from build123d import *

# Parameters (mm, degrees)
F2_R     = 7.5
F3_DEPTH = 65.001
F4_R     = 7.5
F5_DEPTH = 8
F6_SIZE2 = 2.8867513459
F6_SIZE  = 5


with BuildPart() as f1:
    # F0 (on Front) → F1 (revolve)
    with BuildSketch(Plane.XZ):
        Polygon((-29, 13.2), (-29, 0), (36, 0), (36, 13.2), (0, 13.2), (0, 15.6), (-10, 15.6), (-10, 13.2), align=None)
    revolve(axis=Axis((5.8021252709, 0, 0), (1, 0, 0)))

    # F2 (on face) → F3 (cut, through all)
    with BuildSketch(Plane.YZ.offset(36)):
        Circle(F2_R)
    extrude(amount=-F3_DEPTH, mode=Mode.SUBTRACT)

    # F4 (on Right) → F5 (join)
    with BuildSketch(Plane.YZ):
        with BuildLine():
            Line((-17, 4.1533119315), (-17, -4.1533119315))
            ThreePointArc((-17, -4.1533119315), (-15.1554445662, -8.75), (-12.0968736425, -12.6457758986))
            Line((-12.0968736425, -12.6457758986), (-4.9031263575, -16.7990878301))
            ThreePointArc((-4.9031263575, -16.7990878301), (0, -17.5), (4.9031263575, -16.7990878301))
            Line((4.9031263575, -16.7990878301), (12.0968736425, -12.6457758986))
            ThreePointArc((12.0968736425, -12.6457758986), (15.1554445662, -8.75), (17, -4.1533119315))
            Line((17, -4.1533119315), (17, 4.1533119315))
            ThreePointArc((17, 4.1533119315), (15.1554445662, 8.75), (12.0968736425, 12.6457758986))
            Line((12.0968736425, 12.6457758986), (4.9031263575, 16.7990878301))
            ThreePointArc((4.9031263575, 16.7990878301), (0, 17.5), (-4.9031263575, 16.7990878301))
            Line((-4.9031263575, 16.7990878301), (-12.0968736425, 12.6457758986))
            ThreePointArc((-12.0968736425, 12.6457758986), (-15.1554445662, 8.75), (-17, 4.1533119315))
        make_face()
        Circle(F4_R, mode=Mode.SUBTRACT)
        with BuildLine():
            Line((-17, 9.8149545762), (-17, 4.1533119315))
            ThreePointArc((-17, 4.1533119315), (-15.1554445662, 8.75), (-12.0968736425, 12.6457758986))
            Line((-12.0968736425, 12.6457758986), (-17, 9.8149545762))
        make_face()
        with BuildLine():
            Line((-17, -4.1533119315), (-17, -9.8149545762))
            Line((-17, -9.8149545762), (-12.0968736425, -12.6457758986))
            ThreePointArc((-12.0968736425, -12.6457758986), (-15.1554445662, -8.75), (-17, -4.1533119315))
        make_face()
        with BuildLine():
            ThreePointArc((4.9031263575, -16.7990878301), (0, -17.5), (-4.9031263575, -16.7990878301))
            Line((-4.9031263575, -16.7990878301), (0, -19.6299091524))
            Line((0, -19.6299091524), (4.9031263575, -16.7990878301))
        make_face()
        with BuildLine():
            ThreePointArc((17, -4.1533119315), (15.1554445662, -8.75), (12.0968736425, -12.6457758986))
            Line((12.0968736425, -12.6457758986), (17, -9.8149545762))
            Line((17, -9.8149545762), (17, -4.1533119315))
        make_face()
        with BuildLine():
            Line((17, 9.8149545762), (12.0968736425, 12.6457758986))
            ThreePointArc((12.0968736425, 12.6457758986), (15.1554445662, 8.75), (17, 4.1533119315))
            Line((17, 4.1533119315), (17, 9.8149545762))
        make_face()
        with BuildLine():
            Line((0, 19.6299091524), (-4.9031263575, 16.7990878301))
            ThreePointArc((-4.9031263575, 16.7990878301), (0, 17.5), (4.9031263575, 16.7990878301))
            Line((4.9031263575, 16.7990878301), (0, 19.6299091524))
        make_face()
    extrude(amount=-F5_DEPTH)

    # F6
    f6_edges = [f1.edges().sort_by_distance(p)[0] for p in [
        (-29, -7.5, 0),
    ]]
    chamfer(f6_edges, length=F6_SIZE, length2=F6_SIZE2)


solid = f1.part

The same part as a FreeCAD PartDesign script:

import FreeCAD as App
import Part
import Sketcher
Q = App.Units.Quantity


def edges_at(feature, points):
    """Names of the edges that pass closest to the given points."""
    edges = feature.Shape.Edges
    near = lambda p: min(range(len(edges)), key=lambda i: edges[i].distToShape(Part.Vertex(*p))[0])
    return sorted({f"Edge{near(p) + 1}" for p in points})

doc = App.newDocument("Part")
body = doc.addObject("PartDesign::Body", "Body")

sketch1 = body.newObject("Sketcher::SketchObject", "Sketch")
sketch1.AttachmentSupport = (doc.getObject("XZ_Plane"), [""])
sketch1.MapMode = "FlatFace"
sketch1.addGeometry([
    Part.LineSegment(App.Vector(-29, 13.2, 0), App.Vector(-29, 0, 0)),
    Part.LineSegment(App.Vector(-29, 0, 0), App.Vector(36, 0, 0)),
    Part.LineSegment(App.Vector(36, 0, 0), App.Vector(36, 13.2, 0)),
    Part.LineSegment(App.Vector(36, 13.2, 0), App.Vector(0, 13.2, 0)),
    Part.LineSegment(App.Vector(0, 13.2, 0), App.Vector(0, 15.6, 0)),
    Part.LineSegment(App.Vector(0, 15.6, 0), App.Vector(-10, 15.6, 0)),
    Part.LineSegment(App.Vector(-10, 15.6, 0), App.Vector(-10, 13.2, 0)),
    Part.LineSegment(App.Vector(-10, 13.2, 0), App.Vector(-29, 13.2, 0)),
], False)
sketch1.addConstraint([
    Sketcher.Constraint("Coincident", 0, 2, 1, 1),
    Sketcher.Constraint("Coincident", 1, 2, 2, 1),
    Sketcher.Constraint("Coincident", 2, 2, 3, 1),
    Sketcher.Constraint("Coincident", 3, 2, 4, 1),
    Sketcher.Constraint("Coincident", 4, 2, 5, 1),
    Sketcher.Constraint("Coincident", 5, 2, 6, 1),
    Sketcher.Constraint("Coincident", 6, 2, 7, 1),
    Sketcher.Constraint("Coincident", 7, 2, 0, 1),
    Sketcher.Constraint("Vertical", 0),
    Sketcher.Constraint("Horizontal", 1),
    Sketcher.Constraint("Vertical", 2),
    Sketcher.Constraint("Horizontal", 3),
    Sketcher.Constraint("Vertical", 4),
    Sketcher.Constraint("Horizontal", 5),
    Sketcher.Constraint("Vertical", 6),
    Sketcher.Constraint("Horizontal", 7),
    Sketcher.Constraint("PointOnObject", 0, 2, -1),
    Sketcher.Constraint("PointOnObject", 3, 2, -2),
    Sketcher.Constraint("Horizontal", 3, 2, 6, 2),
    Sketcher.Constraint("DistanceX", 1, 1, 1, 2, 65.0),
    Sketcher.Constraint("DistanceX", 3, 2, 3, 1, 36.0),
    Sketcher.Constraint("DistanceX", 5, 2, 5, 1, 10.0),
    Sketcher.Constraint("DistanceY", 0, 2, 0, 1, 13.2),
    Sketcher.Constraint("DistanceY", 4, 1, 4, 2, 2.4),
])
revolution = body.newObject("PartDesign::Revolution", "Revolution")
revolution.Profile = sketch1
revolution.ReferenceAxis = (sketch1, ["H_Axis"])
revolution.Angle = 360

sketch2 = body.newObject("Sketcher::SketchObject", "Sketch001")
sketch2.AttachmentSupport = (doc.getObject("YZ_Plane"), [""])
sketch2.MapMode = "FlatFace"
sketch2.AttachmentOffset = App.Placement(App.Vector(0, 0, 36), App.Rotation())
sketch2.addGeometry(Part.Circle(App.Vector(0, 0, 0), App.Vector(0, 0, 1), 8), False)
sketch2.addConstraint([
    Sketcher.Constraint("Coincident", 0, 3, -1, 1),
    Sketcher.Constraint("Diameter", 0, 15.0),
])
pocket1 = body.newObject("PartDesign::Pocket", "Pocket")
pocket1.Profile = sketch2
pocket1.Type = "ThroughAll"

sketch3 = body.newObject("Sketcher::SketchObject", "Sketch002")
sketch3.AttachmentSupport = (doc.getObject("YZ_Plane"), [""])
sketch3.MapMode = "FlatFace"
sketch3.addGeometry([
    Part.LineSegment(App.Vector(-12, -13, 0), App.Vector(-5, -17, 0)),
    Part.LineSegment(App.Vector(-5, -17, 0), App.Vector(0, -20, 0)),
    Part.LineSegment(App.Vector(0, -20, 0), App.Vector(5, -17, 0)),
    Part.LineSegment(App.Vector(5, -17, 0), App.Vector(12, -13, 0)),
    Part.LineSegment(App.Vector(12, -13, 0), App.Vector(17, -10, 0)),
    Part.LineSegment(App.Vector(17, -10, 0), App.Vector(17, 10, 0)),
    Part.LineSegment(App.Vector(17, 10, 0), App.Vector(12, 13, 0)),
    Part.LineSegment(App.Vector(12, 13, 0), App.Vector(5, 17, 0)),
    Part.LineSegment(App.Vector(5, 17, 0), App.Vector(0, 20, 0)),
    Part.LineSegment(App.Vector(0, 20, 0), App.Vector(-5, 17, 0)),
    Part.LineSegment(App.Vector(-5, 17, 0), App.Vector(-12, 13, 0)),
    Part.LineSegment(App.Vector(-12, 13, 0), App.Vector(-17, 10, 0)),
    Part.LineSegment(App.Vector(-17, 10, 0), App.Vector(-17, -10, 0)),
    Part.LineSegment(App.Vector(-17, -10, 0), App.Vector(-12, -13, 0)),
    Part.Circle(App.Vector(0, 0, 0), App.Vector(0, 0, 1), 8),
], False)
sketch3.addConstraint([
    Sketcher.Constraint("Coincident", 0, 2, 1, 1),
    Sketcher.Constraint("Coincident", 1, 2, 2, 1),
    Sketcher.Constraint("Coincident", 2, 2, 3, 1),
    Sketcher.Constraint("Coincident", 3, 2, 4, 1),
    Sketcher.Constraint("Coincident", 4, 2, 5, 1),
    Sketcher.Constraint("Coincident", 5, 2, 6, 1),
    Sketcher.Constraint("Coincident", 6, 2, 7, 1),
    Sketcher.Constraint("Coincident", 7, 2, 8, 1),
    Sketcher.Constraint("Coincident", 8, 2, 9, 1),
    Sketcher.Constraint("Coincident", 9, 2, 10, 1),
    Sketcher.Constraint("Coincident", 10, 2, 11, 1),
    Sketcher.Constraint("Coincident", 11, 2, 12, 1),
    Sketcher.Constraint("Coincident", 12, 2, 13, 1),
    Sketcher.Constraint("Coincident", 13, 2, 0, 1),
    Sketcher.Constraint("Vertical", 5),
    Sketcher.Constraint("Vertical", 12),
    Sketcher.Constraint("Coincident", 14, 3, -1, 1),
    Sketcher.Constraint("Symmetric", 0, 2, 7, 2, -1, 1),
    Sketcher.Constraint("Symmetric", 1, 2, 8, 2, -1, 1),
    Sketcher.Constraint("Symmetric", 2, 2, 9, 2, -1, 1),
    Sketcher.Constraint("Symmetric", 3, 2, 10, 2, -1, 1),
    Sketcher.Constraint("Symmetric", 4, 2, 11, 2, -1, 1),
    Sketcher.Constraint("Symmetric", 6, 2, 13, 2, -1, 1),
    Sketcher.Constraint("Symmetric", 0, 2, 2, 2, -2),
    Sketcher.Constraint("Symmetric", 6, 2, 10, 2, -2),
    Sketcher.Constraint("PointOnObject", 1, 2, -2),
    Sketcher.Constraint("Parallel", 0, 1),
    Sketcher.Constraint("Parallel", 3, 4),
    Sketcher.Constraint("Parallel", 1, 6),
    Sketcher.Constraint("Parallel", 8, 13),
    Sketcher.Constraint("Equal", 2, 4),
    Sketcher.Constraint("Diameter", 14, 15.0),
    Sketcher.Constraint("Angle", 0, Q("-30 deg")),
    Sketcher.Constraint("DistanceX", -1, 1, 4, 2, 17.0),
    Sketcher.Constraint("DistanceY", 5, 1, 5, 2, 19.629909),
    Sketcher.Constraint("DistanceY", 1, 2, 0, 2, 2.830821),
])
pad1 = body.newObject("PartDesign::Pad", "Pad")
pad1.Profile = sketch3
pad1.Length = 8
pad1.Reversed = True
doc.recompute()

chamfer = body.newObject("PartDesign::Chamfer", "Chamfer")
chamfer.Base = (pad1, edges_at(pad1, [(-29, -7.5, 0)]))
chamfer.ChamferType = "Two distances"
chamfer.Size = 5
chamfer.Size2 = 2.886751

doc.recompute()
